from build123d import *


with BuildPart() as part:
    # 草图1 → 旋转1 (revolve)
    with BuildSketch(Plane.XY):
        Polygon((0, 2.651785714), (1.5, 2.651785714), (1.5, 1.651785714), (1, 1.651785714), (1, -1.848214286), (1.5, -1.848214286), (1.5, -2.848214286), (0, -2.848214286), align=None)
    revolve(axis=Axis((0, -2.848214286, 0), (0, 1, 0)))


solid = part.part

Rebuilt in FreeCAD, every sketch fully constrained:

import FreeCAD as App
import Part
import Sketcher
Q = App.Units.Quantity


def add_polygon(sketch, points):
    """Adds a closed chain of lines whose ends are joined by coincident constraints."""
    first, n = sketch.GeometryCount, len(points)
    for a, b in zip(points, points[1:] + points[:1]):
        sketch.addGeometry(Part.LineSegment(App.Vector(*a, 0), App.Vector(*b, 0)), False)
    for i in range(n):
        sketch.addConstraint(Sketcher.Constraint("Coincident", first + i, 2, first + (i + 1) % n, 1))

doc = App.newDocument("Part")
body = doc.addObject("PartDesign::Body", "Body")

sketch1 = doc.addObject("Sketcher::SketchObject", "Sketch")
body.addObject(sketch1)
sketch1.AttachmentSupport = (doc.XY_Plane, [""])
sketch1.MapMode = "FlatFace"
add_polygon(sketch1, [(1.5, 2.7), (0, 2.7), (0, -2.8), (1.5, -2.8), (1.5, -1.8), (1, -1.8), (1, 1.7), (1.5, 1.7)])
sketch1.addConstraint([
    Sketcher.Constraint("Horizontal", 0),
    Sketcher.Constraint("Vertical", 1),
    Sketcher.Constraint("Horizontal", 2),
    Sketcher.Constraint("Vertical", 3),
    Sketcher.Constraint("Horizontal", 4),
    Sketcher.Constraint("Vertical", 5),
    Sketcher.Constraint("Horizontal", 6),
    Sketcher.Constraint("Vertical", 7),
    Sketcher.Constraint("PointOnObject", 0, 2, -2),
    Sketcher.Constraint("Vertical", 3, 2, 6, 2),
    Sketcher.Constraint("Equal", 3, 7),
    Sketcher.Constraint("DistanceY", 3, 1, 3, 2, Q("1 mm")),
    Sketcher.Constraint("DistanceX", 0, 2, 0, 1, Q("1.5 mm")),
    Sketcher.Constraint("DistanceX", 4, 2, 4, 1, Q("0.5 mm")),
    Sketcher.Constraint("DistanceY", 1, 2, 1, 1, Q("5.5 mm")),
    Sketcher.Constraint("DistanceY", -1, 1, 0, 2, Q("2.651786 mm")),
])
revolution = doc.addObject("PartDesign::Revolution", "Revolution")
body.addObject(revolution)
revolution.Profile = sketch1
revolution.ReferenceAxis = (sketch1, ["V_Axis"])
revolution.Angle = 360

doc.recompute()
